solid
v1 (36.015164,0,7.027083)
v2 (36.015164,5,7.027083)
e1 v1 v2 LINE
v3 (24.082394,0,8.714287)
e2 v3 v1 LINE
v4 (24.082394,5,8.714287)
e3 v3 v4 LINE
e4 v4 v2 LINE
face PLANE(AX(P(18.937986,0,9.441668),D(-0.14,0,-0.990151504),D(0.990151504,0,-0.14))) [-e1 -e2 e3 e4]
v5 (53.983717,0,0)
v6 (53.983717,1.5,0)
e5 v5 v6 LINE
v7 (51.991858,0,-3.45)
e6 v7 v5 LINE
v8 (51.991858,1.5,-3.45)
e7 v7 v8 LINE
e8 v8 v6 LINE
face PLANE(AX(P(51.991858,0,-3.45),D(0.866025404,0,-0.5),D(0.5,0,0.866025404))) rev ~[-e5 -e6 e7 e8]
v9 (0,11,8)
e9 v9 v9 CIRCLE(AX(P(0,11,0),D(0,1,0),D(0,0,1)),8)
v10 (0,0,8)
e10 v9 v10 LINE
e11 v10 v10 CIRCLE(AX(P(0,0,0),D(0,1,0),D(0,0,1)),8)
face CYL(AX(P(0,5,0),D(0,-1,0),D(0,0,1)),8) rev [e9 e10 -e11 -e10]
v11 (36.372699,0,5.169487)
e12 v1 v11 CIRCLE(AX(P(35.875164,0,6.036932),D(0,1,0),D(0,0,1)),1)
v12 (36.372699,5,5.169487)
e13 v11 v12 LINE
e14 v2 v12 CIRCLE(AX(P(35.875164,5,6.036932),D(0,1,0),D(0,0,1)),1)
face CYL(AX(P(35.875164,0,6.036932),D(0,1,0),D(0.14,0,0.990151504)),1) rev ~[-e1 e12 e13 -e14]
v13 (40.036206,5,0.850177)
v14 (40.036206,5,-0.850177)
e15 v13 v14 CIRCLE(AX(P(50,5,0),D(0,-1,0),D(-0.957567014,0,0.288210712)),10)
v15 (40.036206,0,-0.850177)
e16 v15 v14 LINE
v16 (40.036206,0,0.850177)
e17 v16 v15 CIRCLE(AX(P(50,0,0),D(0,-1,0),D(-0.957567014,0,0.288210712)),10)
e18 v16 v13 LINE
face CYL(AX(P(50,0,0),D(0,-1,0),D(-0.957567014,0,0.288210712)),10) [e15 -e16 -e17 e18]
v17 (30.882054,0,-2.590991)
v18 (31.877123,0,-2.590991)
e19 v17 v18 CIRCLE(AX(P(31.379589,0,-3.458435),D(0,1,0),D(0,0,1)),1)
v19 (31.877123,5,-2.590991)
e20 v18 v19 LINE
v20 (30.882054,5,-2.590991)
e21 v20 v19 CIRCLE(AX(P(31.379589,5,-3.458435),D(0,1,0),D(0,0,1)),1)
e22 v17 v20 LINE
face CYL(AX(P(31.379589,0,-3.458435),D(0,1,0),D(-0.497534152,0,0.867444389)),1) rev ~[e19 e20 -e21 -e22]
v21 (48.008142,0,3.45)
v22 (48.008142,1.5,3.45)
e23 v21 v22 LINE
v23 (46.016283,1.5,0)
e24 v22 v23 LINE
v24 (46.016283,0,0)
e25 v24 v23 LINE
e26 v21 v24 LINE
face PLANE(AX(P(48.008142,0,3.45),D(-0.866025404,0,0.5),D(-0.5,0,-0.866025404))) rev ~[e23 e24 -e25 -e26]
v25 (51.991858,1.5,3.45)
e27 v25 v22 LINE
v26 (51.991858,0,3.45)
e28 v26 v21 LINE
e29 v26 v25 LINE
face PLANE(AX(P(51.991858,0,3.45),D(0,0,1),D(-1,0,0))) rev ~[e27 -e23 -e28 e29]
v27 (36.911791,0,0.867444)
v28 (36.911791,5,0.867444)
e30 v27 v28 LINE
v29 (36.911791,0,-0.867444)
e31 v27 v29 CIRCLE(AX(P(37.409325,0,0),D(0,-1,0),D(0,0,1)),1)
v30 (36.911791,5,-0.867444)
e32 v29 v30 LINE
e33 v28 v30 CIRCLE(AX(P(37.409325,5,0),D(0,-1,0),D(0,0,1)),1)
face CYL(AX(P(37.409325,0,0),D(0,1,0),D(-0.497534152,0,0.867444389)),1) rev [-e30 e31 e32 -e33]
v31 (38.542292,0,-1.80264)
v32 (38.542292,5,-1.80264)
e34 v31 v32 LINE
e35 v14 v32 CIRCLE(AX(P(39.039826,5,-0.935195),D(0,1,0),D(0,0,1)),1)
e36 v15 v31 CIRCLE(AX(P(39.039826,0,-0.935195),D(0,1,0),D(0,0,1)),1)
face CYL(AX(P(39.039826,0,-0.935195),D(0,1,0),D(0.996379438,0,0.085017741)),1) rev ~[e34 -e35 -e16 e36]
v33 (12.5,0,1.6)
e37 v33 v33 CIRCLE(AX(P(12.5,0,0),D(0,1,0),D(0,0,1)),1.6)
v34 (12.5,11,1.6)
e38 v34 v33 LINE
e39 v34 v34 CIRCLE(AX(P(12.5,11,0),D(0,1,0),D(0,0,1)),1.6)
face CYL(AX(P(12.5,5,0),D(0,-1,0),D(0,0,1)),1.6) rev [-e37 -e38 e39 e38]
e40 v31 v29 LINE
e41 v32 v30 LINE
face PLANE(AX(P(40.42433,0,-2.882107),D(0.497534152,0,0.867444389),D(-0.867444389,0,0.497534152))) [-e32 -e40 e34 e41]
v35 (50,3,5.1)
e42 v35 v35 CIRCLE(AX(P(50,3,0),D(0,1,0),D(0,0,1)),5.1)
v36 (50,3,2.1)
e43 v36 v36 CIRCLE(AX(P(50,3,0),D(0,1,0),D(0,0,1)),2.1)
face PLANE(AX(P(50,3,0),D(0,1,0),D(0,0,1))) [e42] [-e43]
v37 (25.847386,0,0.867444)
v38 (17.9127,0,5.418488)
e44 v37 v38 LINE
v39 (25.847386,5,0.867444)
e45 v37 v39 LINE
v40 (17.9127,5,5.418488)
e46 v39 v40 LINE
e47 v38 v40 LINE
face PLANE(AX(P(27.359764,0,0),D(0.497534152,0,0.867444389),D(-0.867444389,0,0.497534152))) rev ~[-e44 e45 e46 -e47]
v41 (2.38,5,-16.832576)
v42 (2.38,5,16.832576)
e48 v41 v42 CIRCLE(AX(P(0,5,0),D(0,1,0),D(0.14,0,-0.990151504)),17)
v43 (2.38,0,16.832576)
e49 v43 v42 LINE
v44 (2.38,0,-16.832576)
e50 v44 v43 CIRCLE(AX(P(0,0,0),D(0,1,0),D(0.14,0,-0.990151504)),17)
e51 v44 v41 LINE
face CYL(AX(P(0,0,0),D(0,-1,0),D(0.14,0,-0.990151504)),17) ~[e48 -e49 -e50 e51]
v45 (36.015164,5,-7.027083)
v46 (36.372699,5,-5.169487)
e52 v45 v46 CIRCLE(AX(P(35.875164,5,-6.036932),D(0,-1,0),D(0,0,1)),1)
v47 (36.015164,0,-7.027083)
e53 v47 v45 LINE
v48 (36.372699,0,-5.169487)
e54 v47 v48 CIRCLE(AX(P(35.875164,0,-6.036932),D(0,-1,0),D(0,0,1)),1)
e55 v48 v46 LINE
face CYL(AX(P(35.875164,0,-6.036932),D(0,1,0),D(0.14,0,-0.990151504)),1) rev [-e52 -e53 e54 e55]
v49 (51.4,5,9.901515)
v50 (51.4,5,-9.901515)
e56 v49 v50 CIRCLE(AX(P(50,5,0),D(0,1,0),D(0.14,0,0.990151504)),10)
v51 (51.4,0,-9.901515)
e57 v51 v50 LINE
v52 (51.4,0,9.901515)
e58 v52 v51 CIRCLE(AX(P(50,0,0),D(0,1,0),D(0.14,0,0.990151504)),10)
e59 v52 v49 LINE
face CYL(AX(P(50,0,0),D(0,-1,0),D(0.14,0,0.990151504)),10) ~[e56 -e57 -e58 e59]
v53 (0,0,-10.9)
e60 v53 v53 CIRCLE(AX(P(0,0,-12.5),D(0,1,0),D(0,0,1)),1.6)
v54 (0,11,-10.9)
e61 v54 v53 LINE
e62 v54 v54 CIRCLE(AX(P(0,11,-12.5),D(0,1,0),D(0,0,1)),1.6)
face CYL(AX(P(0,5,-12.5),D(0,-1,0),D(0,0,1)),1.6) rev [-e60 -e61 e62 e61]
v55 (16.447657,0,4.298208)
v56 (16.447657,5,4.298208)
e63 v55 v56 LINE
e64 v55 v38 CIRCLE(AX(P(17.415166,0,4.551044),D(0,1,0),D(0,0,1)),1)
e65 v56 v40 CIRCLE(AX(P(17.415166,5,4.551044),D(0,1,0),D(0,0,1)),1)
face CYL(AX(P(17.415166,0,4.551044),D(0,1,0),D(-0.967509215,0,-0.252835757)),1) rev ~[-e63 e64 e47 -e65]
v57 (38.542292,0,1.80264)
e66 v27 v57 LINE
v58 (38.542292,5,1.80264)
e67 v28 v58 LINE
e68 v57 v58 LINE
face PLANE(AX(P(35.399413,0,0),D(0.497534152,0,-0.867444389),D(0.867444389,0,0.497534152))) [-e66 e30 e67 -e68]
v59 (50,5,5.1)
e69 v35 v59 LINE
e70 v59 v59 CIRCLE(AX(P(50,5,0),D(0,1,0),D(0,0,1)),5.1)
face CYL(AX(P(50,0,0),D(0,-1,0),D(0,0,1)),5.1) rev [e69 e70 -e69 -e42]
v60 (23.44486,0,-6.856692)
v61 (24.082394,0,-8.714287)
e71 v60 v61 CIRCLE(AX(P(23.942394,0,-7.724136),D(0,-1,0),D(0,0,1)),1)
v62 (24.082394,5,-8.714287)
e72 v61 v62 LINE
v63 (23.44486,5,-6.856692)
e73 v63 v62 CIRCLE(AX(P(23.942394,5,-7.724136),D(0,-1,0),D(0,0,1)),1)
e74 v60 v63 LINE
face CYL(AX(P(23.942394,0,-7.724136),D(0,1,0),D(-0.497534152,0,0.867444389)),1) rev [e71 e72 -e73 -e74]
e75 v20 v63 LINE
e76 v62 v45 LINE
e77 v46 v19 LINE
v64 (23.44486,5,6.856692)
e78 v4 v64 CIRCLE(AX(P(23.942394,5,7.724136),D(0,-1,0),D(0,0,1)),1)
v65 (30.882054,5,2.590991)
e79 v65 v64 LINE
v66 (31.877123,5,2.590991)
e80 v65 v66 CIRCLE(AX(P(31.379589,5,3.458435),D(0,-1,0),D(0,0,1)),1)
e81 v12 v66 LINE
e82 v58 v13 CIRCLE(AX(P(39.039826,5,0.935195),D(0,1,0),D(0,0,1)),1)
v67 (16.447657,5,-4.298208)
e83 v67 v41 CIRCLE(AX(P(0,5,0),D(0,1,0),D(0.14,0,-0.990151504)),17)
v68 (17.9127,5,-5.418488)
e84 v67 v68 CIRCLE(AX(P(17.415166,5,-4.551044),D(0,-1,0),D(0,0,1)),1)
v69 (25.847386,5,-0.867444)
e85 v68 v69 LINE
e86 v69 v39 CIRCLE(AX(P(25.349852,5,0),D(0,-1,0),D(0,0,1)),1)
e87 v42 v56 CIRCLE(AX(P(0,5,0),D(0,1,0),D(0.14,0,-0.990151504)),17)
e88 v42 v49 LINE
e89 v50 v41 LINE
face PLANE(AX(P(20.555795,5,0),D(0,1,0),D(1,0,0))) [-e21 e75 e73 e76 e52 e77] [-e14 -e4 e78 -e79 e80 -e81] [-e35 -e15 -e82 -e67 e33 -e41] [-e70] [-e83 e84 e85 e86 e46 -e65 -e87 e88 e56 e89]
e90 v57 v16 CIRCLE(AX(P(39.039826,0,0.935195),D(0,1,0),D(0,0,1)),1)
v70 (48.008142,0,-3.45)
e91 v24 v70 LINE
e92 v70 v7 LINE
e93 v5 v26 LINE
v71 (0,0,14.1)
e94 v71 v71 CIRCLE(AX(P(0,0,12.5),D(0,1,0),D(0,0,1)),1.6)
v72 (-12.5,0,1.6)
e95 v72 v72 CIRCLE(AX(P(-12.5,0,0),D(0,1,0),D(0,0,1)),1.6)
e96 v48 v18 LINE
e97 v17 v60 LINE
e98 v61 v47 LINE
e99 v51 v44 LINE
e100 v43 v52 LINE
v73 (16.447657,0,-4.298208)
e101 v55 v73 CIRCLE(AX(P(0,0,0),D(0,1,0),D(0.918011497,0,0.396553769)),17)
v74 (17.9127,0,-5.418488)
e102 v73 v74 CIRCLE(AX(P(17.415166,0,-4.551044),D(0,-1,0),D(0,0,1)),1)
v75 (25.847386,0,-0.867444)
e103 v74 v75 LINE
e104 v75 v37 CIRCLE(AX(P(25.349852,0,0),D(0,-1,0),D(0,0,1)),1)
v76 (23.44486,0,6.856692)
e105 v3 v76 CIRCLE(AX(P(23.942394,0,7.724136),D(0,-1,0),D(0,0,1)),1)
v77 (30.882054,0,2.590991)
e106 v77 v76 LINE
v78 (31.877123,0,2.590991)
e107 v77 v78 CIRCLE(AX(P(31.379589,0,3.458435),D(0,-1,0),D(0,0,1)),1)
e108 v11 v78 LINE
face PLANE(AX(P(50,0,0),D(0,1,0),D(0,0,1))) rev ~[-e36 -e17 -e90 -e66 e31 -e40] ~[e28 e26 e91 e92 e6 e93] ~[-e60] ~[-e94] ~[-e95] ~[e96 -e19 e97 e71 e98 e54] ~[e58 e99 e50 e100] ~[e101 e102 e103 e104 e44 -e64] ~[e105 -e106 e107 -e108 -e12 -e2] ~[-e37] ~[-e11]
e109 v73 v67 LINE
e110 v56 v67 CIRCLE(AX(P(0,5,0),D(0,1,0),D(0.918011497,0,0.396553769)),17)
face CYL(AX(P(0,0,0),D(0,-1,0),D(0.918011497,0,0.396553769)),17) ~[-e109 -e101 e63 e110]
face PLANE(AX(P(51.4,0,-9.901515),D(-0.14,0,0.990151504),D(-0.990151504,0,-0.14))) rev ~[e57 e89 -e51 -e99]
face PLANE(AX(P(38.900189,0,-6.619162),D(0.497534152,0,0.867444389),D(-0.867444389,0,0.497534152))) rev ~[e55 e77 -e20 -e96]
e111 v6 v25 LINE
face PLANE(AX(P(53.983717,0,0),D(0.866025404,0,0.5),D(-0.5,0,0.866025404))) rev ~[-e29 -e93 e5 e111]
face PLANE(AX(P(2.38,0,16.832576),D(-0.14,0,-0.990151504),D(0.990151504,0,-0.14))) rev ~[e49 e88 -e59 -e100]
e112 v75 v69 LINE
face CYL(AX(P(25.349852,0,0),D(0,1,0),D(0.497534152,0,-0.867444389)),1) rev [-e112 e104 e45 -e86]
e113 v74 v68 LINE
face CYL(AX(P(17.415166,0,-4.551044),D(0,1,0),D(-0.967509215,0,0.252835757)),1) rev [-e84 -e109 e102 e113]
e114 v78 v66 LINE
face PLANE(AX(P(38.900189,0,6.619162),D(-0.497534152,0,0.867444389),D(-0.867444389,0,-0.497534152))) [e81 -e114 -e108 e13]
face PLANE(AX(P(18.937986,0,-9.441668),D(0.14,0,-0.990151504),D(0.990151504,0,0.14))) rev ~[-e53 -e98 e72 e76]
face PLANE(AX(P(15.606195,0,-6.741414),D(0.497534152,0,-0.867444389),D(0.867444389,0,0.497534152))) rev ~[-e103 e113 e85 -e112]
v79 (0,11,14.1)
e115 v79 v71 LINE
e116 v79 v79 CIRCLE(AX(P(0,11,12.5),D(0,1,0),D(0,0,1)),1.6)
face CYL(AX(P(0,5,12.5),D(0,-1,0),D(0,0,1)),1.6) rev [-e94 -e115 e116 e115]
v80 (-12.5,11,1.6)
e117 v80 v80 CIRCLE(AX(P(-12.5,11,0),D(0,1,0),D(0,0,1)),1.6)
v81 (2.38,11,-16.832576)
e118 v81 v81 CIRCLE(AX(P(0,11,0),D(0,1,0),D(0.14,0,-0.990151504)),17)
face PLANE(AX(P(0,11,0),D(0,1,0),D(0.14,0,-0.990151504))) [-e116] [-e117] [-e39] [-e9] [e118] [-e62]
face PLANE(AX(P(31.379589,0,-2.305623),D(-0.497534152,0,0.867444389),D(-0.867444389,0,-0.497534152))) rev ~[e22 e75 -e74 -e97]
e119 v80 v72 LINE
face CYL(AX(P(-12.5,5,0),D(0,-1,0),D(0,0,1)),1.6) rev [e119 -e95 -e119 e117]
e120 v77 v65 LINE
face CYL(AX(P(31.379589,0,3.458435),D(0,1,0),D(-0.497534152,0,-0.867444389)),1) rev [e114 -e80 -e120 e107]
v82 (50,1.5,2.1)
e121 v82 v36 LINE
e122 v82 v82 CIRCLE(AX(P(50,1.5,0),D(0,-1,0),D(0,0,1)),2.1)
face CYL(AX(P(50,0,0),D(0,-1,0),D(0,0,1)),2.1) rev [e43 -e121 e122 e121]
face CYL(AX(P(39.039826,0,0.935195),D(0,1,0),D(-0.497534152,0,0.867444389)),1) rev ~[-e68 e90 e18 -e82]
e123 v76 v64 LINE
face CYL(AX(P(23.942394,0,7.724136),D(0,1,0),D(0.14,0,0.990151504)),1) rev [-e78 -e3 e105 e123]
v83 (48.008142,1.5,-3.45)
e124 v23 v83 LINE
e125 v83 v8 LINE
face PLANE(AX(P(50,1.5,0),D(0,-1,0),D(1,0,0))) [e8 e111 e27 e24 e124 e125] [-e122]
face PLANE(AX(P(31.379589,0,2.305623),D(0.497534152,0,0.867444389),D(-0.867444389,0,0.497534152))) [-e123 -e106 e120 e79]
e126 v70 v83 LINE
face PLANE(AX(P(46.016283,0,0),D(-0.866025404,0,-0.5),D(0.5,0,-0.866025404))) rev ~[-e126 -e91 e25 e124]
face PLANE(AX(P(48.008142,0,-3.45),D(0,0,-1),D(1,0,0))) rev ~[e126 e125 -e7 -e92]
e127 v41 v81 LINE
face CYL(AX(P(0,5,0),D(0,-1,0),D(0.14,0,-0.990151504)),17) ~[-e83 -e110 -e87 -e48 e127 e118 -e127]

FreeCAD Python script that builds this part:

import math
import FreeCAD as App
import Part
import Sketcher
Q = App.Units.Quantity


def edges_at(feature, points):
    """Names of the edges that pass closest to the given points."""
    edges = feature.Shape.Edges
    near = lambda p: min(range(len(edges)), key=lambda i: edges[i].distToShape(Part.Vertex(*p))[0])
    return sorted({f"Edge{near(p) + 1}" for p in points})

doc = App.newDocument("Part")
body = doc.addObject("PartDesign::Body", "Body")

# Sketch on XZ plane
sketch1 = doc.addObject("Sketcher::SketchObject", "Sketch")
body.addObject(sketch1)
sketch1.AttachmentSupport = (doc.XZ_Plane, [""])
sketch1.MapMode = "FlatFace"
sketch1.addGeometry([
    Part.LineSegment(App.Vector(2.4, 16.8, 0), App.Vector(51.4, 9.9, 0)),  # 0
    Part.ArcOfCircle(Part.Circle(App.Vector(50, 0, 0), App.Vector(0, 0, 1), 10), math.radians(-82), math.radians(82)),  # 1
    Part.LineSegment(App.Vector(51.4, -9.9, 0), App.Vector(2.4, -16.8, 0)),  # 2
    Part.ArcOfCircle(Part.Circle(App.Vector(0, 0, 0), App.Vector(0, 0, 1), 17), math.radians(82), math.radians(278)),  # 3
    Part.Circle(App.Vector(0, 12.5, 0), App.Vector(0, 0, 1), 1.6),  # 4
    Part.LineSegment(App.Vector(38.9, 6.6, 0), App.Vector(18.9, 9.4, 0)),  # 5
    Part.LineSegment(App.Vector(18.9, 9.4, 0), App.Vector(31.4, 2.3, 0)),  # 6
    Part.LineSegment(App.Vector(31.4, 2.3, 0), App.Vector(38.9, 6.6, 0)),  # 7
    Part.Circle(App.Vector(-12.5, 0, 0), App.Vector(0, 0, 1), 1.6),  # 8
    Part.Circle(App.Vector(0, 0, 0), App.Vector(0, 0, 1), 8),  # 9
    Part.Circle(App.Vector(12.5, 0, 0), App.Vector(0, 0, 1), 1.6),  # 10
    Part.Circle(App.Vector(0, -12.5, 0), App.Vector(0, 0, 1), 1.6),  # 11
    Part.ArcOfCircle(Part.Circle(App.Vector(0, 0, 0), App.Vector(0, 0, 1), 17), math.radians(-23), math.radians(23)),  # 12
    Part.LineSegment(App.Vector(15.6, -6.7, 0), App.Vector(27.4, 0, 0)),  # 13
    Part.LineSegment(App.Vector(27.4, 0, 0), App.Vector(15.6, 6.7, 0)),  # 14
    Part.LineSegment(App.Vector(31.4, -2.3, 0), App.Vector(18.9, -9.4, 0)),  # 15
    Part.LineSegment(App.Vector(18.9, -9.4, 0), App.Vector(38.9, -6.6, 0)),  # 16
    Part.LineSegment(App.Vector(38.9, -6.6, 0), App.Vector(31.4, -2.3, 0)),  # 17
    Part.LineSegment(App.Vector(40.4, 2.9, 0), App.Vector(35.4, 0, 0)),  # 18
    Part.LineSegment(App.Vector(35.4, 0, 0), App.Vector(40.4, -2.9, 0)),  # 19
    Part.ArcOfCircle(Part.Circle(App.Vector(50, 0, 0), App.Vector(0, 0, 1), 10), math.radians(163), math.radians(197)),  # 20
    Part.Circle(App.Vector(50, 0, 0), App.Vector(0, 0, 1), 5.1),  # 21
], False)
sketch1.addConstraint([
    Sketcher.Constraint("Tangent", 0, 2, 1, 2),
    Sketcher.Constraint("Tangent", 1, 1, 2, 1),
    Sketcher.Constraint("Tangent", 2, 2, 3, 2),
    Sketcher.Constraint("Tangent", 3, 1, 0, 1),
    Sketcher.Constraint("Coincident", 5, 2, 6, 1),
    Sketcher.Constraint("Coincident", 6, 2, 7, 1),
    Sketcher.Constraint("Coincident", 7, 2, 5, 1),
    Sketcher.Constraint("Coincident", 12, 1, 13, 1),
    Sketcher.Constraint("Coincident", 13, 2, 14, 1),
    Sketcher.Constraint("Coincident", 14, 2, 12, 2),
    Sketcher.Constraint("Coincident", 15, 2, 16, 1),
    Sketcher.Constraint("Coincident", 16, 2, 17, 1),
    Sketcher.Constraint("Coincident", 17, 2, 15, 1),
    Sketcher.Constraint("Coincident", 18, 2, 19, 1),
    Sketcher.Constraint("Coincident", 19, 2, 20, 2),
    Sketcher.Constraint("Coincident", 20, 1, 18, 1),
    Sketcher.Constraint("Coincident", 3, 3, -1, 1),
    Sketcher.Constraint("Coincident", 9, 3, -1, 1),
    Sketcher.Constraint("Coincident", 12, 3, -1, 1),
    Sketcher.Constraint("Coincident", 20, 3, 1, 3),
    Sketcher.Constraint("Coincident", 21, 3, 1, 3),
    Sketcher.Constraint("Equal", 4, 8),
    Sketcher.Constraint("Equal", 8, 10),
    Sketcher.Constraint("Equal", 10, 11),
    Sketcher.Constraint("Equal", 3, 12),
    Sketcher.Constraint("Equal", 1, 20),
    Sketcher.Constraint("Symmetric", 8, 3, 10, 3, -1, 1),
    Sketcher.Constraint("Symmetric", 4, 3, 11, 3, -1, 1),
    Sketcher.Constraint("Symmetric", 5, 2, 15, 2, -1),
    Sketcher.Constraint("Symmetric", 7, 2, 16, 2, -1),
    Sketcher.Constraint("Symmetric", 6, 2, 17, 2, -1),
    Sketcher.Constraint("Symmetric", 19, 2, 20, 1, -1),
    Sketcher.Constraint("PointOnObject", 4, 3, -2),
    Sketcher.Constraint("PointOnObject", 8, 3, -1),
    Sketcher.Constraint("PointOnObject", 13, 2, -1),
    Sketcher.Constraint("PointOnObject", 18, 2, -1),
    Sketcher.Constraint("Parallel", 0, 5),
    Sketcher.Constraint("Parallel", 7, 13),
    Sketcher.Constraint("Parallel", 6, 14),
    Sketcher.Constraint("Parallel", 13, 15),
    Sketcher.Constraint("Parallel", 15, 18),
    Sketcher.Constraint("Diameter", 9, 16.0),
    Sketcher.Constraint("Radius", 1, 10.0),
    Sketcher.Constraint("Radius", 3, 17.0),
    Sketcher.Constraint("Diameter", 4, 3.2),
    Sketcher.Constraint("Diameter", 21, 10.2),
    Sketcher.Constraint("DistanceX", -1, 1, 1, 3, 50.0),
    Sketcher.Constraint("DistanceX", 8, 3, 10, 3, 25.0),
    Sketcher.Constraint("DistanceY", 11, 3, 4, 3, 25.0),
    Sketcher.Constraint("DistanceX", 6, 2, 7, 2, 7.5206),
    Sketcher.Constraint("Distance", 13, 13.549651),
    Sketcher.Constraint("DistanceY", -1, 1, 5, 2, 9.441668),
    Sketcher.Constraint("DistanceX", -1, 1, 6, 2, 31.379589),
    Sketcher.Constraint("DistanceX", -1, 1, 19, 2, 40.42433),
    Sketcher.Constraint("DistanceY", 6, 2, 7, 2, 4.313539),
])
pad1 = doc.addObject("PartDesign::Pad", "Pad")
body.addObject(pad1)
pad1.Profile = sketch1
pad1.Length = 5
pad1.Reversed = True

# Sketch on XZ plane
sketch2 = doc.addObject("Sketcher::SketchObject", "Sketch001")
body.addObject(sketch2)
sketch2.AttachmentSupport = (doc.XZ_Plane, [""])
sketch2.MapMode = "FlatFace"
sketch2.addGeometry([
    Part.Circle(App.Vector(50, 0, 0), App.Vector(0, 0, 1), 5.1),
    Part.Circle(App.Vector(50, 0, 0), App.Vector(0, 0, 1), 2.1),
], False)
sketch2.addConstraint([
    Sketcher.Constraint("Coincident", 1, 3, 0, 3),
    Sketcher.Constraint("PointOnObject", 0, 3, -1),
    Sketcher.Constraint("Diameter", 0, 10.2),
    Sketcher.Constraint("Diameter", 1, 4.2),
    Sketcher.Constraint("DistanceX", -1, 1, 0, 3, 50.0),
])
pad2 = doc.addObject("PartDesign::Pad", "Pad001")
body.addObject(pad2)
pad2.Profile = sketch2
pad2.Length = 3
pad2.Reversed = True
doc.recompute()

fillet = doc.addObject("PartDesign::Fillet", "Fillet")
body.addObject(fillet)
fillet.Base = (pad2, edges_at(pad2, [(35.399, 2.5, 0), (40.424, 2.5, 2.882), (40.424, 2.5, -2.882)]))
fillet.Radius = 1
doc.recompute()

fillet2 = doc.addObject("PartDesign::Fillet", "Fillet001")
body.addObject(fillet2)
fillet2.Base = (fillet, edges_at(fillet, [(18.938, 2.5, 9.442), (38.9, 2.5, 6.619), (31.38, 2.5, 2.306)]))
fillet2.Radius = 1
doc.recompute()

fillet3 = doc.addObject("PartDesign::Fillet", "Fillet002")
body.addObject(fillet3)
fillet3.Base = (fillet2, edges_at(fillet2, [(38.9, 2.5, -6.619), (18.938, 2.5, -9.442), (31.38, 2.5, -2.306)]))
fillet3.Radius = 1
doc.recompute()

fillet4 = doc.addObject("PartDesign::Fillet", "Fillet003")
body.addObject(fillet4)
fillet4.Base = (fillet3, edges_at(fillet3, [(27.36, 2.5, 0), (15.606, 2.5, -6.741), (15.606, 2.5, 6.741)]))
fillet4.Radius = 1

# Sketch on XZ plane
sketch3 = doc.addObject("Sketcher::SketchObject", "Sketch002")
body.addObject(sketch3)
sketch3.AttachmentSupport = (doc.XZ_Plane, [""])
sketch3.MapMode = "FlatFace"
sketch3.addGeometry([
    Part.LineSegment(App.Vector(54, 0, 0), App.Vector(52, 3.5, 0)),  # 0
    Part.LineSegment(App.Vector(52, 3.5, 0), App.Vector(48, 3.5, 0)),  # 1
    Part.LineSegment(App.Vector(48, 3.5, 0), App.Vector(46, 0, 0)),  # 2
    Part.LineSegment(App.Vector(46, 0, 0), App.Vector(48, -3.5, 0)),  # 3
    Part.LineSegment(App.Vector(48, -3.5, 0), App.Vector(52, -3.5, 0)),  # 4
    Part.LineSegment(App.Vector(52, -3.5, 0), App.Vector(54, 0, 0)),  # 5
], False)
sketch3.addConstraint([
    Sketcher.Constraint("Coincident", 0, 2, 1, 1),
    Sketcher.Constraint("Coincident", 1, 2, 2, 1),
    Sketcher.Constraint("Coincident", 2, 2, 3, 1),
    Sketcher.Constraint("Coincident", 3, 2, 4, 1),
    Sketcher.Constraint("Coincident", 4, 2, 5, 1),
    Sketcher.Constraint("Coincident", 5, 2, 0, 1),
    Sketcher.Constraint("Horizontal", 1),
    Sketcher.Constraint("Horizontal", 4),
    Sketcher.Constraint("Symmetric", 1, 2, 3, 2, -1),
    Sketcher.Constraint("PointOnObject", 2, 2, -1),
    Sketcher.Constraint("PointOnObject", 5, 2, -1),
    Sketcher.Constraint("Parallel", 0, 3),
    Sketcher.Constraint("Parallel", 2, 5),
    Sketcher.Constraint("Angle", 0, Q("120 deg")),
    Sketcher.Constraint("DistanceY", 3, 2, 1, 2, 6.9),
    Sketcher.Constraint("DistanceX", 1, 2, 1, 1, 3.983717),
    Sketcher.Constraint("DistanceX", -1, 1, 0, 2, 51.991858),
])
pocket1 = doc.addObject("PartDesign::Pocket", "Pocket")
body.addObject(pocket1)
pocket1.Profile = sketch3
pocket1.Length = 1.5

# Sketch on XZ plane
sketch4 = doc.addObject("Sketcher::SketchObject", "Sketch003")
body.addObject(sketch4)
sketch4.AttachmentSupport = (doc.XZ_Plane, [""])
sketch4.MapMode = "FlatFace"
sketch4.AttachmentOffset = App.Placement(App.Vector(0, 0, -5), App.Rotation())
sketch4.addGeometry([
    Part.Circle(App.Vector(0, 0, 0), App.Vector(0, 0, 1), 17),  # 0
    Part.Circle(App.Vector(0, 12.5, 0), App.Vector(0, 0, 1), 1.6),  # 1
    Part.Circle(App.Vector(12.5, 0, 0), App.Vector(0, 0, 1), 1.6),  # 2
    Part.Circle(App.Vector(0, 0, 0), App.Vector(0, 0, 1), 8),  # 3
    Part.Circle(App.Vector(-12.5, 0, 0), App.Vector(0, 0, 1), 1.6),  # 4
    Part.Circle(App.Vector(0, -12.5, 0), App.Vector(0, 0, 1), 1.6),  # 5
], False)
sketch4.addConstraint([
    Sketcher.Constraint("Coincident", 0, 3, -1, 1),
    Sketcher.Constraint("Coincident", 3, 3, -1, 1),
    Sketcher.Constraint("Equal", 1, 2),
    Sketcher.Constraint("Equal", 2, 4),
    Sketcher.Constraint("Equal", 4, 5),
    Sketcher.Constraint("Symmetric", 2, 3, 4, 3, -1, 1),
    Sketcher.Constraint("Symmetric", 1, 3, 5, 3, -1, 1),
    Sketcher.Constraint("PointOnObject", 1, 3, -2),
    Sketcher.Constraint("PointOnObject", 2, 3, -1),
    Sketcher.Constraint("Diameter", 0, 34.0),
    Sketcher.Constraint("Diameter", 3, 16.0),
    Sketcher.Constraint("Diameter", 1, 3.2),
    Sketcher.Constraint("DistanceX", 4, 3, 2, 3, 25.0),
    Sketcher.Constraint("DistanceY", 5, 3, 1, 3, 25.0),
])
pad3 = doc.addObject("PartDesign::Pad", "Pad002")
body.addObject(pad3)
pad3.Profile = sketch4
pad3.Length = 6
pad3.Reversed = True

doc.recompute()
